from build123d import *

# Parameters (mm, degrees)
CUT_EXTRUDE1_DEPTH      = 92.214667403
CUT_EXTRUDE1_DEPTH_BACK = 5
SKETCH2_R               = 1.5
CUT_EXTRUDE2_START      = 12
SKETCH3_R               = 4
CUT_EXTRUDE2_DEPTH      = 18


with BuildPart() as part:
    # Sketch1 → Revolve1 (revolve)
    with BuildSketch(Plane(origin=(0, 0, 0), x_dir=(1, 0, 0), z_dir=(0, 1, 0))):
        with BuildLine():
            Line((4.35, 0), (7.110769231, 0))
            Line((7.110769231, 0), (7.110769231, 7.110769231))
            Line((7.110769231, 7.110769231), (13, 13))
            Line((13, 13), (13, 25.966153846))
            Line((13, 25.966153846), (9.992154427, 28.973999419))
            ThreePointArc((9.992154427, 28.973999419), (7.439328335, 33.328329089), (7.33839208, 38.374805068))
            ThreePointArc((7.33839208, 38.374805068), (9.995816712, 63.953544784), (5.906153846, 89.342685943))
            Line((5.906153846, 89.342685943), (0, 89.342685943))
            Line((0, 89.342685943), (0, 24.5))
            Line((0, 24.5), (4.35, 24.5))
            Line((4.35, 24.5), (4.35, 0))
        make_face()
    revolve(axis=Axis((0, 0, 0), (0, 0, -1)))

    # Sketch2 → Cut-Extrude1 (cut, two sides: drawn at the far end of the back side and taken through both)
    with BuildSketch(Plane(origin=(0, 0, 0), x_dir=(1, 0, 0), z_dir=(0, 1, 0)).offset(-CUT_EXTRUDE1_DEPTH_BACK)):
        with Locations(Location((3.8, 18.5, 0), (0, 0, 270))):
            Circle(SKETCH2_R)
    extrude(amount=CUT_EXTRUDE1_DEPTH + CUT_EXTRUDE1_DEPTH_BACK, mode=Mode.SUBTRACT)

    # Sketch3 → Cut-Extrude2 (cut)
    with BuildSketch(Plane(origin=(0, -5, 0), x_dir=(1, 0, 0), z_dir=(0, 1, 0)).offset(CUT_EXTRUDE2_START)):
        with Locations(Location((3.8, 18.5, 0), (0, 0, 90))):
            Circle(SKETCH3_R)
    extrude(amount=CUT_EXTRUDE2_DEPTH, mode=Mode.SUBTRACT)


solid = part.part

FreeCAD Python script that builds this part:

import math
import FreeCAD as App
import Part
import Sketcher
Q = App.Units.Quantity

doc = App.newDocument("Part")
body = doc.addObject("PartDesign::Body", "Body")

sketch1 = doc.addObject("Sketcher::SketchObject", "Sketch")
body.addObject(sketch1)
sketch1.AttachmentSupport = (doc.XZ_Plane, [""])
sketch1.MapMode = "FlatFace"
sketch1.addGeometry([
    Part.LineSegment(App.Vector(4.35, 0, 0), App.Vector(7.110769, 0, 0)),
    Part.LineSegment(App.Vector(7.110769, 0, 0), App.Vector(7.110769, -7.110769, 0)),
    Part.LineSegment(App.Vector(7.110769, -7.110769, 0), App.Vector(13, -13, 0)),
    Part.LineSegment(App.Vector(13, -13, 0), App.Vector(13, -25.966154, 0)),
    Part.LineSegment(App.Vector(13, -25.966154, 0), App.Vector(9.992154, -28.973999, 0)),
    Part.ArcOfCircle(Part.Circle(App.Vector(17.063222, -36.045067, 0), App.Vector(0, 0, 1), 10), math.radians(135), math.radians(193.472214)),
    Part.ArcOfCircle(Part.Circle(App.Vector(-87.944519, -61.201343, 0), App.Vector(0, 0, 1), 97.978998), math.radians(-16.691482), math.radians(13.472214)),
    Part.LineSegment(App.Vector(5.906154, -89.342686, 0), App.Vector(0, -89.342686, 0)),
    Part.LineSegment(App.Vector(0, -89.342686, 0), App.Vector(0, -24.5, 0)),
    Part.LineSegment(App.Vector(0, -24.5, 0), App.Vector(4.35, -24.5, 0)),
    Part.LineSegment(App.Vector(4.35, -24.5, 0), App.Vector(4.35, 0, 0)),
], False)
sketch1.addConstraint([
    Sketcher.Constraint("Coincident", 0, 2, 1, 1),
    Sketcher.Constraint("Coincident", 1, 2, 2, 1),
    Sketcher.Constraint("Coincident", 2, 2, 3, 1),
    Sketcher.Constraint("Coincident", 3, 2, 4, 1),
    Sketcher.Constraint("Tangent", 4, 2, 5, 1),
    Sketcher.Constraint("Tangent", 5, 2, 6, 2),
    Sketcher.Constraint("Coincident", 6, 1, 7, 1),
    Sketcher.Constraint("Coincident", 7, 2, 8, 1),
    Sketcher.Constraint("Coincident", 8, 2, 9, 1),
    Sketcher.Constraint("Coincident", 9, 2, 10, 1),
    Sketcher.Constraint("Coincident", 10, 2, 0, 1),
    Sketcher.Constraint("Horizontal", 0),
    Sketcher.Constraint("Vertical", 1),
    Sketcher.Constraint("Vertical", 3),
    Sketcher.Constraint("Horizontal", 7),
    Sketcher.Constraint("Vertical", 8),
    Sketcher.Constraint("Horizontal", 9),
    Sketcher.Constraint("Vertical", 10),
    Sketcher.Constraint("PointOnObject", 0, 2, -1),
    Sketcher.Constraint("PointOnObject", 7, 2, -2),
    Sketcher.Constraint("Perpendicular", 2, 4),
    Sketcher.Constraint("Radius", 5, Q("10 mm")),
    Sketcher.Constraint("Angle", 2, Q("-45 deg")),
    Sketcher.Constraint("DistanceY", 10, 1, 10, 2, Q("24.5 mm")),
    Sketcher.Constraint("DistanceX", -1, 1, 2, 2, Q("13 mm")),
    Sketcher.Constraint("DistanceY", 2, 2, -1, 1, Q("13 mm")),
    Sketcher.Constraint("Radius", 6, Q("97.978998 mm")),
    Sketcher.Constraint("DistanceX", 9, 1, 9, 2, Q("4.35 mm")),
    Sketcher.Constraint("DistanceY", 4, 2, -1, 1, Q("28.973999 mm")),
    Sketcher.Constraint("DistanceX", 6, 1, 4, 2, Q("4.086001 mm")),
    Sketcher.Constraint("DistanceX", 0, 1, 0, 2, Q("2.760769 mm")),
    Sketcher.Constraint("DistanceX", 7, 2, 7, 1, Q("5.906154 mm")),
    Sketcher.Constraint("DistanceY", 8, 1, 8, 2, Q("64.842686 mm")),
])
revolution = doc.addObject("PartDesign::Revolution", "Revolution")
body.addObject(revolution)
revolution.Profile = sketch1
revolution.ReferenceAxis = (sketch1, ["V_Axis"])
revolution.Angle = 360

sketch2 = doc.addObject("Sketcher::SketchObject", "Sketch001")
body.addObject(sketch2)
sketch2.AttachmentSupport = (doc.XZ_Plane, [""])
sketch2.MapMode = "FlatFace"
sketch2.addGeometry(Part.Circle(App.Vector(3.8, -18.5, 0), App.Vector(0, 0, 1), 1.5), False)
sketch2.addConstraint([
    Sketcher.Constraint("Diameter", 0, Q("3 mm")),
    Sketcher.Constraint("DistanceX", -1, 1, 0, 3, Q("3.8 mm")),
    Sketcher.Constraint("DistanceY", 0, 3, -1, 1, Q("18.5 mm")),
])
pocket1 = doc.addObject("PartDesign::Pocket", "Pocket")
body.addObject(pocket1)
pocket1.Profile = sketch2
pocket1.Type = "TwoLengths"
pocket1.Length = 92.214667
pocket1.Length2 = 5

sketch3 = doc.addObject("Sketcher::SketchObject", "Sketch002")
body.addObject(sketch3)
sketch3.AttachmentSupport = (doc.XZ_Plane, [""])
sketch3.MapMode = "FlatFace"
sketch3.AttachmentOffset = App.Placement(App.Vector(0, 0, -7), App.Rotation())
sketch3.addGeometry(Part.Circle(App.Vector(3.8, -18.5, 0), App.Vector(0, 0, 1), 4), False)
sketch3.addConstraint([
    Sketcher.Constraint("Diameter", 0, Q("8 mm")),
    Sketcher.Constraint("DistanceX", -1, 1, 0, 3, Q("3.8 mm")),
    Sketcher.Constraint("DistanceY", 0, 3, -1, 1, Q("18.5 mm")),
])
pocket2 = doc.addObject("PartDesign::Pocket", "Pocket001")
body.addObject(pocket2)
pocket2.Profile = sketch3
pocket2.Length = 18

doc.recompute()
